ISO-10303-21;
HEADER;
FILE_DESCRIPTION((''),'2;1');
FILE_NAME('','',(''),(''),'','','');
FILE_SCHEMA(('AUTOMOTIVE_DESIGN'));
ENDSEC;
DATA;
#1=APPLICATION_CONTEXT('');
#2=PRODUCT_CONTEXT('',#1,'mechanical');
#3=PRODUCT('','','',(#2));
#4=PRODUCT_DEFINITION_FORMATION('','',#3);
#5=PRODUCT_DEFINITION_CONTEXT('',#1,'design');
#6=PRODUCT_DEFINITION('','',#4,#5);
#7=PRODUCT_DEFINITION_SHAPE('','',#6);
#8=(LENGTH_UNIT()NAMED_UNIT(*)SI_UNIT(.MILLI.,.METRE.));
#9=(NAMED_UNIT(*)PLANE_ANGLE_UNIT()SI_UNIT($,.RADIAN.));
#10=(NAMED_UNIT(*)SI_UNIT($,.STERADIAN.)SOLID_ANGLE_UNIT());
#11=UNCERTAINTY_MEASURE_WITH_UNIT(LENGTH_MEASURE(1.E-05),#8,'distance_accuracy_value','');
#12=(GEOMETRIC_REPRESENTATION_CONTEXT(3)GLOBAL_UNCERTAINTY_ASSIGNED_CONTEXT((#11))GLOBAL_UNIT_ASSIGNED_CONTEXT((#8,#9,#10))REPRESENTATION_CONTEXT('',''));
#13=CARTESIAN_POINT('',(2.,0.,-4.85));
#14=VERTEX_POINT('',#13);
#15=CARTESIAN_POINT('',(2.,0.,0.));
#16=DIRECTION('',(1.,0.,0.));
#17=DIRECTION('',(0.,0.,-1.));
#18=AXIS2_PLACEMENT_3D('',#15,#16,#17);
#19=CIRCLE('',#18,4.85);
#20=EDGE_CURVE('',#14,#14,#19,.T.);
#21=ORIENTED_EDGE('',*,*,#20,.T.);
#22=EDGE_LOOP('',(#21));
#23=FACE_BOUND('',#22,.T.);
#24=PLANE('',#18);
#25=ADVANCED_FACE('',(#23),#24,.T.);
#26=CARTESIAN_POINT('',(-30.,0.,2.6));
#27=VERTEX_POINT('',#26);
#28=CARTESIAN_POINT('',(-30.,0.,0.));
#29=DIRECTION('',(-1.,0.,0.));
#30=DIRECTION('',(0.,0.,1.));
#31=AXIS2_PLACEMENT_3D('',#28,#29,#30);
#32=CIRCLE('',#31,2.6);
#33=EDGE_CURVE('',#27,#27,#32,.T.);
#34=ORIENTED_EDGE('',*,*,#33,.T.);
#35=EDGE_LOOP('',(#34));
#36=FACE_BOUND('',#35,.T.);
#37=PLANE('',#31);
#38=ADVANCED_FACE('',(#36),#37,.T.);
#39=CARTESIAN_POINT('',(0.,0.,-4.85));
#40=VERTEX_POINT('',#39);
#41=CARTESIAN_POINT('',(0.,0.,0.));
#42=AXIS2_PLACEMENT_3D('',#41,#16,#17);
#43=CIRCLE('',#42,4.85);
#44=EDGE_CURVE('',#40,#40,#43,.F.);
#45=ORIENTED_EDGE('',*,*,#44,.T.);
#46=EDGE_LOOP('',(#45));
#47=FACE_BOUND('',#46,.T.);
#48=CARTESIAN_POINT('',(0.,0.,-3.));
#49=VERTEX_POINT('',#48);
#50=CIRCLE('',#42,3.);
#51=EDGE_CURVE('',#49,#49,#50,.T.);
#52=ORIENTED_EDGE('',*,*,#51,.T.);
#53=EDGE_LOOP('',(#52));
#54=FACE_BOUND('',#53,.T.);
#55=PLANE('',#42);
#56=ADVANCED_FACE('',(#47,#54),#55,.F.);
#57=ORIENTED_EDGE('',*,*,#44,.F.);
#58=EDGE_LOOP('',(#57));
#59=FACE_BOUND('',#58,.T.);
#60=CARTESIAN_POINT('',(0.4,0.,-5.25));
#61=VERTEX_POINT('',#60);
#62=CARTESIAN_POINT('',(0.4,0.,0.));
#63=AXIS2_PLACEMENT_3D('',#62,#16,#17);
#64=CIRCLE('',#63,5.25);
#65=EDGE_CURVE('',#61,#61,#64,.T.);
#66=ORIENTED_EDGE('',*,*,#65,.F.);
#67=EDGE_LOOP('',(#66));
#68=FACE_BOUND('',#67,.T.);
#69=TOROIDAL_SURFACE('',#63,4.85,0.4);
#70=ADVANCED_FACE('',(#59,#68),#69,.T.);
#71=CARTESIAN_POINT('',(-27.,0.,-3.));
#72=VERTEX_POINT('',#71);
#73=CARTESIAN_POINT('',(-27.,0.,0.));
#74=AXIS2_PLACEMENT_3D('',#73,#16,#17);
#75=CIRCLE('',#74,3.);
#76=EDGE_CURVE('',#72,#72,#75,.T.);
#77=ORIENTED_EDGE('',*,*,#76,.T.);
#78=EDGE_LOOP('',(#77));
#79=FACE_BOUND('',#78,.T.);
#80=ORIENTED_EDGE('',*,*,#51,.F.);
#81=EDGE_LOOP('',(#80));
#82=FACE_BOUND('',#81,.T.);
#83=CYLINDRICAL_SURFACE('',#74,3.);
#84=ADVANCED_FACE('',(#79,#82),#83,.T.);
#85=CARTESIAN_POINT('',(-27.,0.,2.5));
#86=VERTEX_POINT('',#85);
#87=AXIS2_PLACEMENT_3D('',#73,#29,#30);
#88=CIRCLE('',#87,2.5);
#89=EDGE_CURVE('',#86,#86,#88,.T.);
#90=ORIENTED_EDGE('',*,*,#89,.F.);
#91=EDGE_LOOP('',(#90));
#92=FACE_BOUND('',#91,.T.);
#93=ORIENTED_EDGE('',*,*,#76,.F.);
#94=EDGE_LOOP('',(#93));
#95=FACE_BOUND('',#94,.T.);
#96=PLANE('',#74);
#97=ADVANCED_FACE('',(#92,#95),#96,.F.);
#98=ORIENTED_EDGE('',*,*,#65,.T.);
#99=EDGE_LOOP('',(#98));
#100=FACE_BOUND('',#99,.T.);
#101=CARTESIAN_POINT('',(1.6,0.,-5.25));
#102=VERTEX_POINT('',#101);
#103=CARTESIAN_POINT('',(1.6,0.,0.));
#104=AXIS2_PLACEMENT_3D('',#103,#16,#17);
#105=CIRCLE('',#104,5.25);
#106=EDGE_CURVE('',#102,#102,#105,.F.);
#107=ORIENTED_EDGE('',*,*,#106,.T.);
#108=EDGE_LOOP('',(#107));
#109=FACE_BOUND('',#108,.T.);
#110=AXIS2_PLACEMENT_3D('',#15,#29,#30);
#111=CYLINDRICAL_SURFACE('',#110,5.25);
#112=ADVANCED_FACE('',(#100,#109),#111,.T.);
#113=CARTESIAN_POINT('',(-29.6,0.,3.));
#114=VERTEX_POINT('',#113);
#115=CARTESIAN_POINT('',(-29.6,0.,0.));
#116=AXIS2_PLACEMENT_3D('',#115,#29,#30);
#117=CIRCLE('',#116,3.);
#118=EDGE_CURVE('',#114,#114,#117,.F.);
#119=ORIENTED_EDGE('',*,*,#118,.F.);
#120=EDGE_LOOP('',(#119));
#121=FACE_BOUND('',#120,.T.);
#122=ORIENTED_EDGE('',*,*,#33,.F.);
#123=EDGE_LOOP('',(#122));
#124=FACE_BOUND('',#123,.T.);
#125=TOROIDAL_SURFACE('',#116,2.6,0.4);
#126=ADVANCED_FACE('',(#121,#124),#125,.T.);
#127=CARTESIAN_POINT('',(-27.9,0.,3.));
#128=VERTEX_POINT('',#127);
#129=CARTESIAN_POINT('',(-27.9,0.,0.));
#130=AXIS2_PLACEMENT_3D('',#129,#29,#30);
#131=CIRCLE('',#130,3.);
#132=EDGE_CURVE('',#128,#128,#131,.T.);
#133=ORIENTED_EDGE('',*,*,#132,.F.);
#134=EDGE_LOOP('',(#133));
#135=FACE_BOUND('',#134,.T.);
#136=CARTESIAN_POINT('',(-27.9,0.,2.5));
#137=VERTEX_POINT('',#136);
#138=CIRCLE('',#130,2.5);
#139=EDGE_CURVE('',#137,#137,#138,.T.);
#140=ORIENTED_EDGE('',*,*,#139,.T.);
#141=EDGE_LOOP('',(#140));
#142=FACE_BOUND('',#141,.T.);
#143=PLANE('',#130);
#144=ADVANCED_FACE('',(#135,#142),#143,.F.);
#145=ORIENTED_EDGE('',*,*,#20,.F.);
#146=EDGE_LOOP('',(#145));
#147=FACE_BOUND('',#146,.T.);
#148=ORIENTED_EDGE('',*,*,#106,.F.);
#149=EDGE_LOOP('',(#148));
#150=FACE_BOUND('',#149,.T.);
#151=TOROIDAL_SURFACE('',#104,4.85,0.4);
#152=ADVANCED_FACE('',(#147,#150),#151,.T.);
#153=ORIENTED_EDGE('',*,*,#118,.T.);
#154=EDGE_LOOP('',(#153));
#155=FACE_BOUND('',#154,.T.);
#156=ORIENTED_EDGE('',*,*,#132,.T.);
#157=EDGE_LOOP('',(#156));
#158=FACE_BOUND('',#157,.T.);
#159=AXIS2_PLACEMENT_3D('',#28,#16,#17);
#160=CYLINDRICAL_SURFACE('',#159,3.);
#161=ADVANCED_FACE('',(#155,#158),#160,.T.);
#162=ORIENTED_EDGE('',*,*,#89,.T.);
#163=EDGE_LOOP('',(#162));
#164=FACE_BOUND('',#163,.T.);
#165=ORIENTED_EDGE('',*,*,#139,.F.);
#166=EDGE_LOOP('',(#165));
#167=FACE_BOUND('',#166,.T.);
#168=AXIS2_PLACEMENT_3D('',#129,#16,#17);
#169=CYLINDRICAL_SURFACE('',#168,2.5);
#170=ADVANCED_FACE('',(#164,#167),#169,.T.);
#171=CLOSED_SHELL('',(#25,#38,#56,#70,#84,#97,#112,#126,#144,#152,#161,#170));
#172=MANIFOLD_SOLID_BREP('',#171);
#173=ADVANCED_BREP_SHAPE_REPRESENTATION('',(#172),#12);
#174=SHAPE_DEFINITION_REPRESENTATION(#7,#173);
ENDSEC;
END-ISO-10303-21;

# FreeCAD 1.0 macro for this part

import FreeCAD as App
import Part
import Sketcher


def edges_at(feature, points):
    """Names of the edges that pass closest to the given points."""
    edges = feature.Shape.Edges
    near = lambda p: min(range(len(edges)), key=lambda i: edges[i].distToShape(Part.Vertex(*p))[0])
    return sorted({f"Edge{near(p) + 1}" for p in points})

doc = App.newDocument("Part")
body = doc.addObject("PartDesign::Body", "Body")

sketch1 = body.newObject("Sketcher::SketchObject", "Sketch")
sketch1.AttachmentSupport = (doc.getObject("YZ_Plane"), [""])
sketch1.MapMode = "FlatFace"
sketch1.addGeometry(Part.Circle(App.Vector(0, 0, 0), App.Vector(0, 0, 1), 5), False)
sketch1.addConstraint(Sketcher.Constraint("Coincident", 0, 3, -1, 1))
sketch1.addConstraint(Sketcher.Constraint("Diameter", 0, 10.5))
pad1 = body.newObject("PartDesign::Pad", "Pad")
pad1.Profile = sketch1
pad1.Length = 2

sketch2 = body.newObject("Sketcher::SketchObject", "Sketch001")
sketch2.AttachmentSupport = (doc.getObject("YZ_Plane"), [""])
sketch2.MapMode = "FlatFace"
sketch2.addGeometry(Part.Circle(App.Vector(0, 0, 0), App.Vector(0, 0, 1), 3), False)
sketch2.addConstraint(Sketcher.Constraint("Coincident", 0, 3, -1, 1))
sketch2.addConstraint(Sketcher.Constraint("Diameter", 0, 6.0))
pad2 = body.newObject("PartDesign::Pad", "Pad001")
pad2.Profile = sketch2
pad2.Length = 27
pad2.Reversed = True
doc.recompute()

fillet = body.newObject("PartDesign::Fillet", "Fillet")
fillet.Base = (pad2, edges_at(pad2, [(0, 0, 5.25), (2, 0, 5.25)]))
fillet.Radius = 0.4

sketch3 = body.newObject("Sketcher::SketchObject", "Sketch002")
sketch3.AttachmentSupport = (doc.getObject("YZ_Plane"), [""])
sketch3.MapMode = "FlatFace"
sketch3.AttachmentOffset = App.Placement(App.Vector(0, 0, -27), App.Rotation())
sketch3.addGeometry(Part.Circle(App.Vector(0, 0, 0), App.Vector(0, 0, 1), 2.5), False)
sketch3.addConstraint(Sketcher.Constraint("Coincident", 0, 3, -1, 1))
sketch3.addConstraint(Sketcher.Constraint("Diameter", 0, 5.0))
pad3 = body.newObject("PartDesign::Pad", "Pad002")
pad3.Profile = sketch3
pad3.Length = 0.9
pad3.Reversed = True

sketch4 = body.newObject("Sketcher::SketchObject", "Sketch003")
sketch4.AttachmentSupport = (doc.getObject("YZ_Plane"), [""])
sketch4.MapMode = "FlatFace"
sketch4.AttachmentOffset = App.Placement(App.Vector(0, 0, -27.9), App.Rotation())
sketch4.addGeometry(Part.Circle(App.Vector(0, 0, 0), App.Vector(0, 0, 1), 3), False)
sketch4.addConstraint(Sketcher.Constraint("Coincident", 0, 3, -1, 1))
sketch4.addConstraint(Sketcher.Constraint("Diameter", 0, 6.0))
pad4 = body.newObject("PartDesign::Pad", "Pad003")
pad4.Profile = sketch4
pad4.Length = 2.1
pad4.Reversed = True
doc.recompute()

fillet2 = body.newObject("PartDesign::Fillet", "Fillet001")
fillet2.Base = (pad4, edges_at(pad4, [(-30, 0, 3)]))
fillet2.Radius = 0.4

doc.recompute()
